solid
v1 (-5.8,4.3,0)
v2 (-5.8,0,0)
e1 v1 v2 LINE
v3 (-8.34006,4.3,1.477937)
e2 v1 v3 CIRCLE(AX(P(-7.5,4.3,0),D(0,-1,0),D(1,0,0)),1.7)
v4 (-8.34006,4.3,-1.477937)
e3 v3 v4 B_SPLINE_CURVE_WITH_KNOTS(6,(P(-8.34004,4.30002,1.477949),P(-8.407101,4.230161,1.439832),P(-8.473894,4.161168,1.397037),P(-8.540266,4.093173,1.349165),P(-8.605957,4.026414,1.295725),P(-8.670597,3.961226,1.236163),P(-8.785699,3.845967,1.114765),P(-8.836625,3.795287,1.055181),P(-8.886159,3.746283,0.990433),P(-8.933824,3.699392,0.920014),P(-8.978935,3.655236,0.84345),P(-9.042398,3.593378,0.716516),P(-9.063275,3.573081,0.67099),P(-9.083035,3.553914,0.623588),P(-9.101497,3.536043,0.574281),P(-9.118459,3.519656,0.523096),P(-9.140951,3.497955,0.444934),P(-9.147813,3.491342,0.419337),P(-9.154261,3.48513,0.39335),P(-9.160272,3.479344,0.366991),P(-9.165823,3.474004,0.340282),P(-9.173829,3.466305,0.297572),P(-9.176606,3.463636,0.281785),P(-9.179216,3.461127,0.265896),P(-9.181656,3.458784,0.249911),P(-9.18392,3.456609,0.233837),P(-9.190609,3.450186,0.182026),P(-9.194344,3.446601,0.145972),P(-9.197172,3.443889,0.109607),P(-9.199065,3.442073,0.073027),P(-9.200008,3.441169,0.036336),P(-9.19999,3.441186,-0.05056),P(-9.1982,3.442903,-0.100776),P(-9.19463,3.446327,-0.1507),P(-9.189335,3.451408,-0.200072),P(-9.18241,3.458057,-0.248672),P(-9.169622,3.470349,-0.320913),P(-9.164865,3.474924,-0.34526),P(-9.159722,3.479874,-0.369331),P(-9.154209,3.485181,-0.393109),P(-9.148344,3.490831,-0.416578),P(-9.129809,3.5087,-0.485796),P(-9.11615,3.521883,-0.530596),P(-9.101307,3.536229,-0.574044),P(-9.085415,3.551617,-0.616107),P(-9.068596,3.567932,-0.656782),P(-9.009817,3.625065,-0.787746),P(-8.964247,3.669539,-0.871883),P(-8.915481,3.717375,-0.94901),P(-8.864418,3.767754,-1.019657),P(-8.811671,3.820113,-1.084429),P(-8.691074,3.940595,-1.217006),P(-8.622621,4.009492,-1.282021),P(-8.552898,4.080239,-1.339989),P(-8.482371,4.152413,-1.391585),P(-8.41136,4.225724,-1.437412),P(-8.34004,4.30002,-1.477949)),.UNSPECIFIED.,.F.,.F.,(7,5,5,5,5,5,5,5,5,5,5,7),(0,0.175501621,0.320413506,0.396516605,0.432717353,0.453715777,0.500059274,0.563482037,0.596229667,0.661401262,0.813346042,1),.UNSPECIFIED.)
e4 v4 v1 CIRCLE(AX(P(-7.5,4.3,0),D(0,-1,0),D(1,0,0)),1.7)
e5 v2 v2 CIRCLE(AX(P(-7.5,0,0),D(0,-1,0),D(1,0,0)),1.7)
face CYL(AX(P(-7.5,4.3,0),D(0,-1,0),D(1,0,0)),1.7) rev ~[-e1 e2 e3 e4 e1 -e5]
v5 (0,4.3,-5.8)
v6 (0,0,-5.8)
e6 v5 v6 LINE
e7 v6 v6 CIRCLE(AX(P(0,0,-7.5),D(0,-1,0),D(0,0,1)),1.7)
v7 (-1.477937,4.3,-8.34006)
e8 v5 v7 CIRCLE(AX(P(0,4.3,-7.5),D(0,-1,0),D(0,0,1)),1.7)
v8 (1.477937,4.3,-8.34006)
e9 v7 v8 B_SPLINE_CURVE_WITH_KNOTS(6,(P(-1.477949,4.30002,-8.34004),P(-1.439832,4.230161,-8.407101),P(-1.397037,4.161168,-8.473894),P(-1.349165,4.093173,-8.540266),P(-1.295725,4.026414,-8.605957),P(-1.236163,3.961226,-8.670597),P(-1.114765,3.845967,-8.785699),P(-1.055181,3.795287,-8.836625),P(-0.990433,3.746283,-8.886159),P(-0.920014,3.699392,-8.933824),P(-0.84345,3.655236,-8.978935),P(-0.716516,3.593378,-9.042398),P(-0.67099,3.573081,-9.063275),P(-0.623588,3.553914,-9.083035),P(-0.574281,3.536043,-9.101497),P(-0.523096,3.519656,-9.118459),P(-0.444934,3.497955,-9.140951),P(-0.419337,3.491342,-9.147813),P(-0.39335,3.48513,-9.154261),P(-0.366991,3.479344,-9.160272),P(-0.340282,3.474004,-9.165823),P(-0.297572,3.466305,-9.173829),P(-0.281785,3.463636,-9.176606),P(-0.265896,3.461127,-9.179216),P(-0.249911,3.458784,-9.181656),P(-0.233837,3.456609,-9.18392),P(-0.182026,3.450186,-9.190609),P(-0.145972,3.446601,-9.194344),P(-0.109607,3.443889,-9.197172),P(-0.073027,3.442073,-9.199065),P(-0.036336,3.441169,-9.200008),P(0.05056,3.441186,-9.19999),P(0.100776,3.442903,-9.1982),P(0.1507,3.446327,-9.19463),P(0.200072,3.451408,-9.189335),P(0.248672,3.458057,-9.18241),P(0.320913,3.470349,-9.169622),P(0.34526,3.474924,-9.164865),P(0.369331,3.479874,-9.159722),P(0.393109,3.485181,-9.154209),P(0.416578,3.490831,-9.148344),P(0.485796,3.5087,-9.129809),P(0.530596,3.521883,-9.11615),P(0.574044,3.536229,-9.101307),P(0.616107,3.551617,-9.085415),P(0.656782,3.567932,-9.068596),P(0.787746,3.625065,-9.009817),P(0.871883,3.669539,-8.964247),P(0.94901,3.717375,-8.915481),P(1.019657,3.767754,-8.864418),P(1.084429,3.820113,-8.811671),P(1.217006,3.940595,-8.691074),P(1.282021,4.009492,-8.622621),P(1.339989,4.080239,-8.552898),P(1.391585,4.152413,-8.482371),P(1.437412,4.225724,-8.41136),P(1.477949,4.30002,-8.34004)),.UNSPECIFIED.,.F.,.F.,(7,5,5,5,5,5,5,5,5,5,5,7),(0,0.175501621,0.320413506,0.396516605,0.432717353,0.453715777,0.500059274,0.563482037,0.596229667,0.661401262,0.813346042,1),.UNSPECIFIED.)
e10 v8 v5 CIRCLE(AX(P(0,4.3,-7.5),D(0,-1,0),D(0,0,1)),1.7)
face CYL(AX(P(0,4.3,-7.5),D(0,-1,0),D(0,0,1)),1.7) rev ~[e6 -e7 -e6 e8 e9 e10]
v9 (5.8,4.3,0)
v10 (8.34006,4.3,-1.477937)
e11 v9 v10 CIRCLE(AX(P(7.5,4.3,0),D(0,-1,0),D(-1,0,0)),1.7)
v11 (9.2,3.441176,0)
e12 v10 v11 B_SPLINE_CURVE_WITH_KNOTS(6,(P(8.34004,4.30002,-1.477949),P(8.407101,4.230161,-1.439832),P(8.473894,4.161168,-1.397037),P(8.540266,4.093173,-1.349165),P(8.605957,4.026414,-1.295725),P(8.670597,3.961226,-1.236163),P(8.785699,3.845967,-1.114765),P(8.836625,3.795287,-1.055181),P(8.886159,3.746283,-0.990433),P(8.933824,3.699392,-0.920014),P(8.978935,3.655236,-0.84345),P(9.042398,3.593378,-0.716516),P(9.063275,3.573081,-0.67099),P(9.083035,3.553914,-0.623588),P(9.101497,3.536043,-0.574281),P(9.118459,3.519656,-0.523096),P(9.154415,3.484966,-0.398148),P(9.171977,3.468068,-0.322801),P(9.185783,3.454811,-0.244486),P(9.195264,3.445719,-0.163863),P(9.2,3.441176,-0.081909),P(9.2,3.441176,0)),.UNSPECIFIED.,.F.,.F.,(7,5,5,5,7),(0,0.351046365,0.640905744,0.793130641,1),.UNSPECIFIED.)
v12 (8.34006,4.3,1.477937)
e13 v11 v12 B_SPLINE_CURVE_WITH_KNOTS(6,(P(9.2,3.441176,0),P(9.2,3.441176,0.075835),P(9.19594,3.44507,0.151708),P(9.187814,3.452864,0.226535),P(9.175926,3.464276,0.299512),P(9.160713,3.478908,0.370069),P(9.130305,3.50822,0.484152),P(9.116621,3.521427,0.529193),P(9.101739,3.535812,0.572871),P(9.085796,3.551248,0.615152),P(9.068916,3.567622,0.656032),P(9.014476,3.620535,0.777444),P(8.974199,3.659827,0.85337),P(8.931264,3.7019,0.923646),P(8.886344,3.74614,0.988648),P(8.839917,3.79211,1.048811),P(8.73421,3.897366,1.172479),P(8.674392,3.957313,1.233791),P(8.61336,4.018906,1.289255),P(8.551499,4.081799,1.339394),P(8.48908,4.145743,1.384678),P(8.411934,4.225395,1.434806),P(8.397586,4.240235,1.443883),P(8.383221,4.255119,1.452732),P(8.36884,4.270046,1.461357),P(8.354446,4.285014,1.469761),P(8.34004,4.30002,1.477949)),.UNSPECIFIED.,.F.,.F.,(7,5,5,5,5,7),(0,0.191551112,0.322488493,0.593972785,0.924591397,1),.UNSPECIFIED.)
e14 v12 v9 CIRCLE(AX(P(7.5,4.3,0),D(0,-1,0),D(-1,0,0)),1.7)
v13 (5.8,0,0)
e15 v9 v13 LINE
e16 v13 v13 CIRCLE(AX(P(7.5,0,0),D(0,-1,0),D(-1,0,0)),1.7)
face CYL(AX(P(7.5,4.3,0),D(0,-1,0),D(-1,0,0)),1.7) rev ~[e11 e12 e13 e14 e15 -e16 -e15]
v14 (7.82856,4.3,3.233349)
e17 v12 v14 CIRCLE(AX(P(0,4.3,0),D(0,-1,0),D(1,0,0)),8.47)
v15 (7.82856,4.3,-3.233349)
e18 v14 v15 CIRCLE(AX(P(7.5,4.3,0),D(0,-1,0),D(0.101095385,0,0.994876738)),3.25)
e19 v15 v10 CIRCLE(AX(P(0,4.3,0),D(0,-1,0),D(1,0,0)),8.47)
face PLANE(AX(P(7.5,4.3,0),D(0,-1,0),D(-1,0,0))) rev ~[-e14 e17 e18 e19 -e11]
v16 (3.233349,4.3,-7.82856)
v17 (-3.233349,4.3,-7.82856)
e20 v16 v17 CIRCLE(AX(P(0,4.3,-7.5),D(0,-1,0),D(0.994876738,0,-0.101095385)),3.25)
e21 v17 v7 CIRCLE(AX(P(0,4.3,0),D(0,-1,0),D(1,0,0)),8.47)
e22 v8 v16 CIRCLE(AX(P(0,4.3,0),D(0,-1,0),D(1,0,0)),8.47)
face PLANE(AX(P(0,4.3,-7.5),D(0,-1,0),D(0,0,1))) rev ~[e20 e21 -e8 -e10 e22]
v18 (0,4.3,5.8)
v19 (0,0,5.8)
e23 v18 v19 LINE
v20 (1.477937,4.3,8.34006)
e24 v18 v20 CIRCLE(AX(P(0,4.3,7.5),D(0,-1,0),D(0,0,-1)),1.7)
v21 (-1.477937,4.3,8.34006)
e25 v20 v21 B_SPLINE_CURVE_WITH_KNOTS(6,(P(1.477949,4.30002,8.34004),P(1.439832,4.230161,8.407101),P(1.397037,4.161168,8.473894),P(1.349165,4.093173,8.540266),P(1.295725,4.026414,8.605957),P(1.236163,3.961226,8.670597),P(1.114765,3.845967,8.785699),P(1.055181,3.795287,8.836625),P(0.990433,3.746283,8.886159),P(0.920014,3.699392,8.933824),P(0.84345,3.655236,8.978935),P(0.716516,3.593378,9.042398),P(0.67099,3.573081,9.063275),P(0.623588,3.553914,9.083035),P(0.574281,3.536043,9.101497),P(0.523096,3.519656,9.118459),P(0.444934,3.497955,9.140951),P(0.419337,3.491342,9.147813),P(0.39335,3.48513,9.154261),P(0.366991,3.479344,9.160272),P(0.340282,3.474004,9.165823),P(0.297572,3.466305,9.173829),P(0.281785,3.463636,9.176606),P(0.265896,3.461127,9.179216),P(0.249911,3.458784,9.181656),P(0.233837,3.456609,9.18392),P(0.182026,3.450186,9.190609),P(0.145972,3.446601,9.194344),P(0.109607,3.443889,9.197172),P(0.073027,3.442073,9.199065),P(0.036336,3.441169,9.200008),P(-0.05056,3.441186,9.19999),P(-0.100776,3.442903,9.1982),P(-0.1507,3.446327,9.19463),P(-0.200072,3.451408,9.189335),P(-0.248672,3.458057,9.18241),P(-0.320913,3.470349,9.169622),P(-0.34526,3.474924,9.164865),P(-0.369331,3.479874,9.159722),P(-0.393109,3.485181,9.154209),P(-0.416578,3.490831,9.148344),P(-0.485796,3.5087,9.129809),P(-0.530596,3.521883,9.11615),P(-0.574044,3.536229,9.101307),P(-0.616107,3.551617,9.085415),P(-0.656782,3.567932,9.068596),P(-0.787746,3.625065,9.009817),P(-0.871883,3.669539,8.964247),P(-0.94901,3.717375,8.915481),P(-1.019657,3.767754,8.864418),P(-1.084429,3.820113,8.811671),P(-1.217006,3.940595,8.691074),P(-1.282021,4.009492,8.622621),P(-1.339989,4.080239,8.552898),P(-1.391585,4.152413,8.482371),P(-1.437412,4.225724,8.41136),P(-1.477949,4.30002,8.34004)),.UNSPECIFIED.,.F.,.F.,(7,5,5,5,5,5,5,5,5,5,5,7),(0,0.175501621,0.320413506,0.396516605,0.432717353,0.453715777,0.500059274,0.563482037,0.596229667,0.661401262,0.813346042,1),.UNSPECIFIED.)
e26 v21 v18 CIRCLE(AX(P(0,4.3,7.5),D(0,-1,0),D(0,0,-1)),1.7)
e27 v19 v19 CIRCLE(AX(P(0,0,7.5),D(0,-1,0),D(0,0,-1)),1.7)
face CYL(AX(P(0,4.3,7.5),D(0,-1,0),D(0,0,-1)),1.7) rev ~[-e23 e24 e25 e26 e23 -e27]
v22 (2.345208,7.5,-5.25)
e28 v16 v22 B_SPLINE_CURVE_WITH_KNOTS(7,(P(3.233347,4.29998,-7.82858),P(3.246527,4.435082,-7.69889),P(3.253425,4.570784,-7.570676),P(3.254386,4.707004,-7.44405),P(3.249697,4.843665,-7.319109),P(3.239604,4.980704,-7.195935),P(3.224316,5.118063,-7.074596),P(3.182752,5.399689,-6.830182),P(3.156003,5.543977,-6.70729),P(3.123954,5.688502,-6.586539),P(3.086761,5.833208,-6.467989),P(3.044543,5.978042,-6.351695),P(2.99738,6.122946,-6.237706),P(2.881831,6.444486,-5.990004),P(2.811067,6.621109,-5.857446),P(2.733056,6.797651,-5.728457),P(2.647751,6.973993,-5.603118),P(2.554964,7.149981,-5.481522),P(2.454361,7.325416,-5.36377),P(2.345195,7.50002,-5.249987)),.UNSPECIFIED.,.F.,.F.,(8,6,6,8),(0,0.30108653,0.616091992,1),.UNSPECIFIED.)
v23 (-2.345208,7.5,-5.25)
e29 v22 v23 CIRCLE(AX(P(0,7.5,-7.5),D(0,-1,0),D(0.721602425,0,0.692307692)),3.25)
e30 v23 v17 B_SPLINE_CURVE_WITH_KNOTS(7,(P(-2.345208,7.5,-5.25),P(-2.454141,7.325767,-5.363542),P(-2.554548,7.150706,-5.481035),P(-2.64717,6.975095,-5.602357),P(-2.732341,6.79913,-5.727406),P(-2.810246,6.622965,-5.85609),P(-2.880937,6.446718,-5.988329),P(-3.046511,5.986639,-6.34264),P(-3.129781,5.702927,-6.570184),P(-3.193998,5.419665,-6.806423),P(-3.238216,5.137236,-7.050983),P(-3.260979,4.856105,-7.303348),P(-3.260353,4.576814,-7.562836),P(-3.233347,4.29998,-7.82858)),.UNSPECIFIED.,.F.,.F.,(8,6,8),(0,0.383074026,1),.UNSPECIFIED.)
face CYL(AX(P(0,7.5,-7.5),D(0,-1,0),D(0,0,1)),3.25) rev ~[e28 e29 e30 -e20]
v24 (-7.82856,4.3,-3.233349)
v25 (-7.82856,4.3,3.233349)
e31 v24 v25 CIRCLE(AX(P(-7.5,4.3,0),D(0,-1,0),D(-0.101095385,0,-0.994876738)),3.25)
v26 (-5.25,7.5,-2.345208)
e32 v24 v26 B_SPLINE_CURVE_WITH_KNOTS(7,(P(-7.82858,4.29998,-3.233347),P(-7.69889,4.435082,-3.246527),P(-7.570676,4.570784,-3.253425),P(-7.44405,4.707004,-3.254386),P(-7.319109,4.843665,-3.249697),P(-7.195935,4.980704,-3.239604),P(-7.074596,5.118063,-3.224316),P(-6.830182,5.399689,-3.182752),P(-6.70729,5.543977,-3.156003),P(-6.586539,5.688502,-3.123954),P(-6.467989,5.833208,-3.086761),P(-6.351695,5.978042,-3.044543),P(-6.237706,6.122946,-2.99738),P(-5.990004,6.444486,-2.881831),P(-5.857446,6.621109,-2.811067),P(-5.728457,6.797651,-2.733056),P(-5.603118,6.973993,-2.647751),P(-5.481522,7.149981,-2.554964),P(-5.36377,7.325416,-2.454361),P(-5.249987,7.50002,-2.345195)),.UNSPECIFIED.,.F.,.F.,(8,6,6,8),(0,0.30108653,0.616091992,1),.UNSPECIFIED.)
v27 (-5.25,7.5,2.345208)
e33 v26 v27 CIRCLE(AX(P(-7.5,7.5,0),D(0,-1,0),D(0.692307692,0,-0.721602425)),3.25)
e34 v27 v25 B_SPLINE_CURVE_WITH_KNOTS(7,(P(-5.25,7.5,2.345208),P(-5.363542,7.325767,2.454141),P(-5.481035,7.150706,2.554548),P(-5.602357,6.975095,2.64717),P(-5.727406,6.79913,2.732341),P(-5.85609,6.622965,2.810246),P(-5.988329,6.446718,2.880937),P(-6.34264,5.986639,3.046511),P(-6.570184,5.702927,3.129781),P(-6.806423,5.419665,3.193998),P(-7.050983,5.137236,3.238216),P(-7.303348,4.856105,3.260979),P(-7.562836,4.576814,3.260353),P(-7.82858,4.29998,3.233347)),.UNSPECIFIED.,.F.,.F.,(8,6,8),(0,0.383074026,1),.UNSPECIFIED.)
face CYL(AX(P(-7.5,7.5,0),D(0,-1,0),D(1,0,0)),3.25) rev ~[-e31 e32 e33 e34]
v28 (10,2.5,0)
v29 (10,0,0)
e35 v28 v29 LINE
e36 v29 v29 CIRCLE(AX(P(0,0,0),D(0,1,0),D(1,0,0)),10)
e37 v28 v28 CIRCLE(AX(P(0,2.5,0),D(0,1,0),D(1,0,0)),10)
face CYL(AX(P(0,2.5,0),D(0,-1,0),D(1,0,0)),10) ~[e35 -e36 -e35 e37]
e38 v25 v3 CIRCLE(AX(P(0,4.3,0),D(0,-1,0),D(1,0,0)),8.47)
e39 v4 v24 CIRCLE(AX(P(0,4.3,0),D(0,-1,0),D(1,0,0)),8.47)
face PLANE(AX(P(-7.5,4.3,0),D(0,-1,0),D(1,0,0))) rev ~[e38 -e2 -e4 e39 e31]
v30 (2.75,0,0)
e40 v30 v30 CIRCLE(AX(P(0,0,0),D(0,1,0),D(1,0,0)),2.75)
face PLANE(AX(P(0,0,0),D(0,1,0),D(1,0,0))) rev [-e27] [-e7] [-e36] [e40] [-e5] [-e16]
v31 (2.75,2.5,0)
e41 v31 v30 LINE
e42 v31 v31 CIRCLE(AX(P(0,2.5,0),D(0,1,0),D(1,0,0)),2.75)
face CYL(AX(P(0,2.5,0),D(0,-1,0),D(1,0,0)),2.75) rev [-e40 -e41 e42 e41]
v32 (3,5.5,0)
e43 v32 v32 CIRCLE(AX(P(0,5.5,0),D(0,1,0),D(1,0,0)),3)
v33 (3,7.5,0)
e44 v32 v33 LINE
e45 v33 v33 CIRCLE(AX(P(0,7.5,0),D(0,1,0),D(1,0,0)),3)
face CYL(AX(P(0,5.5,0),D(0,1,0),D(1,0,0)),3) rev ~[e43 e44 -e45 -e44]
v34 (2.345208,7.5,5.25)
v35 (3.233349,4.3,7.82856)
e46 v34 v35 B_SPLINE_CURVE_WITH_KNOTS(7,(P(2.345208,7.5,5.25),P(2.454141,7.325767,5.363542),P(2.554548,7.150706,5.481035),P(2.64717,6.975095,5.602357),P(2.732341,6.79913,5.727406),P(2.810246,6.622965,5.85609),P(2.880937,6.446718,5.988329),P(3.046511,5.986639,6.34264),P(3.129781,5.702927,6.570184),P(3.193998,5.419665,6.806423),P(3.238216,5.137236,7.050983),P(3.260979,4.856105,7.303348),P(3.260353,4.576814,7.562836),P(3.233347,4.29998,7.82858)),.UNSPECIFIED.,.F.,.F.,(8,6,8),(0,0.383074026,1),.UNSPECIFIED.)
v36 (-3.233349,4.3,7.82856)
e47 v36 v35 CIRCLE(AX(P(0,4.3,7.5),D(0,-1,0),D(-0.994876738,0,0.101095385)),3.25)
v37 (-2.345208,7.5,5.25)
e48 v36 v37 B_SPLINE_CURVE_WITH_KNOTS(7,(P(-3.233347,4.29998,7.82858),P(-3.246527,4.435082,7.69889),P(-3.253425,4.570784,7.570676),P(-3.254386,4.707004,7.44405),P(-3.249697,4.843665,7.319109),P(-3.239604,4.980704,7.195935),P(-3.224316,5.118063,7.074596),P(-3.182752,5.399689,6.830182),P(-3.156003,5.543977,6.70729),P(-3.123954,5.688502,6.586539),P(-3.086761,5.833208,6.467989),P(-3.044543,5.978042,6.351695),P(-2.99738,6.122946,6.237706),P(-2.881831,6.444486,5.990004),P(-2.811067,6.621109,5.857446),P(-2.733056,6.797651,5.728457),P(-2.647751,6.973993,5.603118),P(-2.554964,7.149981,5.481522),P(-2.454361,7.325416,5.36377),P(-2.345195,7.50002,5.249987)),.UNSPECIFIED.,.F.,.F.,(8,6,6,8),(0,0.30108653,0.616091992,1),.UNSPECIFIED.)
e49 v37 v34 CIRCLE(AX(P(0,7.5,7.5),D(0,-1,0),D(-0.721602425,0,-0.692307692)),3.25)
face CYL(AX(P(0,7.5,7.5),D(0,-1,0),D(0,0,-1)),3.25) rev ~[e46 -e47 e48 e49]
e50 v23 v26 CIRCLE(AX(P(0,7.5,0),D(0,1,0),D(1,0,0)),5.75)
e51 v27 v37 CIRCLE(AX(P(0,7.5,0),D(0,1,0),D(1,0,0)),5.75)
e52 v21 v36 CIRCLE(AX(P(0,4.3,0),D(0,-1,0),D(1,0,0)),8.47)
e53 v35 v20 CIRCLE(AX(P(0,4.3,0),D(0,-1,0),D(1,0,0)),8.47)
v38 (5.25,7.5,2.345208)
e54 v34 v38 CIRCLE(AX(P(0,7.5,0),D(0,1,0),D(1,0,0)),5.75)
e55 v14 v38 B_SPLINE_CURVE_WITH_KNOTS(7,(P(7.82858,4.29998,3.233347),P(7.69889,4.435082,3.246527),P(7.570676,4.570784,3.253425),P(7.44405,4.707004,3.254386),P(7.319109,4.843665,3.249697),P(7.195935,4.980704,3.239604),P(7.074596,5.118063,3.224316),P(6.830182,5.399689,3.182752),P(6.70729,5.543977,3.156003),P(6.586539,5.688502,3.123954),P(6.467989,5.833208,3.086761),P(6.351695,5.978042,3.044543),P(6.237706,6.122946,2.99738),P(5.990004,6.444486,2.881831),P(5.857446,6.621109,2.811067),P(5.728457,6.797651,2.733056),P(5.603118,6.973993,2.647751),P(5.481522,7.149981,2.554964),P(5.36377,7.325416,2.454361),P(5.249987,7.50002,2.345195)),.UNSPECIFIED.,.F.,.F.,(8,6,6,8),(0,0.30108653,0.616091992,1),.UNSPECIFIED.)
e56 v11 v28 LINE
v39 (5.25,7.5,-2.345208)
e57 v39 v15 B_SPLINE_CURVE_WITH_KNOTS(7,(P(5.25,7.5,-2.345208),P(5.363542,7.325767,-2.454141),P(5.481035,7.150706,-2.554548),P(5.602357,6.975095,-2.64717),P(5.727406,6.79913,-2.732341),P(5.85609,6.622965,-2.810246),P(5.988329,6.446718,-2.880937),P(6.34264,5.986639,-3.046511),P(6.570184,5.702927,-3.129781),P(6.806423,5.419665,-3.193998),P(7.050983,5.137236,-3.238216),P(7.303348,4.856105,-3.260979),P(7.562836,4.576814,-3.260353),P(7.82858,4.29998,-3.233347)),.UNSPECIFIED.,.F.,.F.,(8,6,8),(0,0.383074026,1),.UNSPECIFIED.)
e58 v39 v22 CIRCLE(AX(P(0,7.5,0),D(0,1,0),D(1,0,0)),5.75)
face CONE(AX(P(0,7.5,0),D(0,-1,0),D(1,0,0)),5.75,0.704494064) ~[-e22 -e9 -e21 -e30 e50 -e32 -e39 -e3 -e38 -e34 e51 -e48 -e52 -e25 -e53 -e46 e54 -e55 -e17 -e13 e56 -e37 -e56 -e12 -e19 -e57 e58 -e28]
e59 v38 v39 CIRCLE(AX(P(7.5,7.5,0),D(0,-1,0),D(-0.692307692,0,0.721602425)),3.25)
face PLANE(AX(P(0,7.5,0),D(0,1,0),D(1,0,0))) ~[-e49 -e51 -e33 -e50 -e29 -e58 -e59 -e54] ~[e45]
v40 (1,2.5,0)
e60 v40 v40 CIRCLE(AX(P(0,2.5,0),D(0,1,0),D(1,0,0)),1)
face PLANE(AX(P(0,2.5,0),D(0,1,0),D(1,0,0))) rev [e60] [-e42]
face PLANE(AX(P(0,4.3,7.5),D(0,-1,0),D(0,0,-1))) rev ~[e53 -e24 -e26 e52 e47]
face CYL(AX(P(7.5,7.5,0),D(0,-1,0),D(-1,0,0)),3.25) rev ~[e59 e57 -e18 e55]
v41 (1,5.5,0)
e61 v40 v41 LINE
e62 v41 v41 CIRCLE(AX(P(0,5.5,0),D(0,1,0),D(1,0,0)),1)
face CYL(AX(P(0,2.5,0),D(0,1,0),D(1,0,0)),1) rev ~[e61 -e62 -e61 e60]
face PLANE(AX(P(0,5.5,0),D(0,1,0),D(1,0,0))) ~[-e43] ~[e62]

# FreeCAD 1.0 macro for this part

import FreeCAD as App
import Part
import Sketcher
from FreeCAD import Vector


def add_polygon(sketch, points):
    """Adds a closed chain of lines whose ends are joined by coincident constraints."""
    first, n = sketch.GeometryCount, len(points)
    for a, b in zip(points, points[1:] + points[:1]):
        sketch.addGeometry(Part.LineSegment(App.Vector(*a, 0), App.Vector(*b, 0)), False)
    for i in range(n):
        sketch.addConstraint(Sketcher.Constraint("Coincident", first + i, 2, first + (i + 1) % n, 1))

doc = App.newDocument("Part")
params = doc.addObject("Spreadsheet::Sheet", "Params")
for row, (alias, value) in enumerate([
    ("sketch1_width", "2 mm"),
    ("sketch1_height", "3 mm"),
    ("sketch1_height2", "2.5 mm"),
    ("sketch1_width2", "1.75 mm"),
    ("revolution_angle", "360 deg"),
    ("sketch2_diameter", "3.4 mm"),
    ("hole_diameter", "3.4 mm"),
    ("hole_cbore_diameter", "6.5 mm"),
    ("hole_cbore_depth", "3.2 mm"),
], start=1):
    params.set(f"A{row}", alias)
    params.set(f"B{row}", "=" + value)
    params.setAlias(f"B{row}", alias)

body = doc.addObject("PartDesign::Body", "Body")

# Sketch on XY plane
sketch1 = body.newObject("Sketcher::SketchObject", "Sketch")
sketch1.AttachmentSupport = (doc.getObject("XY_Plane"), [""])
sketch1.MapMode = "FlatFace"
add_polygon(sketch1, [(1, 5.5), (1, 2.5), (2.8, 2.5), (2.8, 0), (10, 0), (10, 2.5), (5.8, 7.5), (3, 7.5), (3, 5.5)])  # lines 0-8
sketch1.addConstraint([
    Sketcher.Constraint("Vertical", 0),
    Sketcher.Constraint("Horizontal", 1),
    Sketcher.Constraint("Vertical", 2),
    Sketcher.Constraint("Horizontal", 3),
    Sketcher.Constraint("Vertical", 4),
    Sketcher.Constraint("Horizontal", 6),
    Sketcher.Constraint("Vertical", 7),
    Sketcher.Constraint("Horizontal", 8),
    Sketcher.Constraint("PointOnObject", 2, 2, -1),
    Sketcher.Constraint("Horizontal", 1, 2, 4, 2),
    Sketcher.Constraint("Equal", 8, 7),
    Sketcher.Constraint("DistanceX", 8, 2, 8, 1, 2.0),
    Sketcher.Constraint("DistanceY", 0, 2, 0, 1, 3.0),
    Sketcher.Constraint("DistanceY", 2, 2, 2, 1, 2.5),
    Sketcher.Constraint("DistanceX", -1, 1, 6, 2, 3.0),
    Sketcher.Constraint("DistanceX", 1, 2, 5, 2, 3.0),
    Sketcher.Constraint("DistanceX", -1, 1, 3, 2, 10.0),
    Sketcher.Constraint("DistanceX", 1, 1, 1, 2, 1.75),
])
sketch1.setExpression("Constraints[20]", "Params.sketch1_width")
sketch1.setExpression("Constraints[21]", "Params.sketch1_height")
sketch1.setExpression("Constraints[22]", "Params.sketch1_height2")
sketch1.setExpression("Constraints[26]", "Params.sketch1_width2")
revolution = body.newObject("PartDesign::Revolution", "Revolution")
revolution.Profile = sketch1
revolution.ReferenceAxis = (sketch1, ["V_Axis"])
revolution.setExpression("Angle", "Params.revolution_angle")

# Sketch on XZ plane
sketch2 = body.newObject("Sketcher::SketchObject", "Sketch001")
sketch2.AttachmentSupport = (doc.getObject("XZ_Plane"), [""])
sketch2.MapMode = "FlatFace"
sketch2.AttachmentOffset = App.Placement(Vector(0, 0, -7.5), App.Rotation())
sketch2.addGeometry(Part.Circle(Vector(0, -7.5, 0), Vector(0, 0, 1), 1.7), False)
sketch2.addConstraint([
    Sketcher.Constraint("PointOnObject", 0, 3, -2),
    Sketcher.Constraint("Diameter", 0, 3.4),
    Sketcher.Constraint("DistanceY", 0, 3, -1, 1, 7.5),
])
sketch2.setExpression("Constraints[1]", "Params.sketch2_diameter")
doc.recompute()
hole = body.newObject("PartDesign::Hole", "Hole")
hole.Profile = sketch2
hole.ThreadType = "None"
hole.setExpression("Diameter", "Params.hole_diameter")
hole.DepthType = "ThroughAll"
hole.HoleCutType = "Counterbore"
hole.setExpression("HoleCutDiameter", "Params.hole_cbore_diameter")
hole.setExpression("HoleCutDepth", "Params.hole_cbore_depth")
hole.Reversed = True
doc.recompute()

polarpattern = body.newObject("PartDesign::PolarPattern", "PolarPattern")
polarpattern.Originals = [hole]
polarpattern.Axis = (doc.getObject("Y_Axis"), [""])
polarpattern.Angle = 360
polarpattern.Occurrences = 4
body.Tip = polarpattern

doc.recompute()
